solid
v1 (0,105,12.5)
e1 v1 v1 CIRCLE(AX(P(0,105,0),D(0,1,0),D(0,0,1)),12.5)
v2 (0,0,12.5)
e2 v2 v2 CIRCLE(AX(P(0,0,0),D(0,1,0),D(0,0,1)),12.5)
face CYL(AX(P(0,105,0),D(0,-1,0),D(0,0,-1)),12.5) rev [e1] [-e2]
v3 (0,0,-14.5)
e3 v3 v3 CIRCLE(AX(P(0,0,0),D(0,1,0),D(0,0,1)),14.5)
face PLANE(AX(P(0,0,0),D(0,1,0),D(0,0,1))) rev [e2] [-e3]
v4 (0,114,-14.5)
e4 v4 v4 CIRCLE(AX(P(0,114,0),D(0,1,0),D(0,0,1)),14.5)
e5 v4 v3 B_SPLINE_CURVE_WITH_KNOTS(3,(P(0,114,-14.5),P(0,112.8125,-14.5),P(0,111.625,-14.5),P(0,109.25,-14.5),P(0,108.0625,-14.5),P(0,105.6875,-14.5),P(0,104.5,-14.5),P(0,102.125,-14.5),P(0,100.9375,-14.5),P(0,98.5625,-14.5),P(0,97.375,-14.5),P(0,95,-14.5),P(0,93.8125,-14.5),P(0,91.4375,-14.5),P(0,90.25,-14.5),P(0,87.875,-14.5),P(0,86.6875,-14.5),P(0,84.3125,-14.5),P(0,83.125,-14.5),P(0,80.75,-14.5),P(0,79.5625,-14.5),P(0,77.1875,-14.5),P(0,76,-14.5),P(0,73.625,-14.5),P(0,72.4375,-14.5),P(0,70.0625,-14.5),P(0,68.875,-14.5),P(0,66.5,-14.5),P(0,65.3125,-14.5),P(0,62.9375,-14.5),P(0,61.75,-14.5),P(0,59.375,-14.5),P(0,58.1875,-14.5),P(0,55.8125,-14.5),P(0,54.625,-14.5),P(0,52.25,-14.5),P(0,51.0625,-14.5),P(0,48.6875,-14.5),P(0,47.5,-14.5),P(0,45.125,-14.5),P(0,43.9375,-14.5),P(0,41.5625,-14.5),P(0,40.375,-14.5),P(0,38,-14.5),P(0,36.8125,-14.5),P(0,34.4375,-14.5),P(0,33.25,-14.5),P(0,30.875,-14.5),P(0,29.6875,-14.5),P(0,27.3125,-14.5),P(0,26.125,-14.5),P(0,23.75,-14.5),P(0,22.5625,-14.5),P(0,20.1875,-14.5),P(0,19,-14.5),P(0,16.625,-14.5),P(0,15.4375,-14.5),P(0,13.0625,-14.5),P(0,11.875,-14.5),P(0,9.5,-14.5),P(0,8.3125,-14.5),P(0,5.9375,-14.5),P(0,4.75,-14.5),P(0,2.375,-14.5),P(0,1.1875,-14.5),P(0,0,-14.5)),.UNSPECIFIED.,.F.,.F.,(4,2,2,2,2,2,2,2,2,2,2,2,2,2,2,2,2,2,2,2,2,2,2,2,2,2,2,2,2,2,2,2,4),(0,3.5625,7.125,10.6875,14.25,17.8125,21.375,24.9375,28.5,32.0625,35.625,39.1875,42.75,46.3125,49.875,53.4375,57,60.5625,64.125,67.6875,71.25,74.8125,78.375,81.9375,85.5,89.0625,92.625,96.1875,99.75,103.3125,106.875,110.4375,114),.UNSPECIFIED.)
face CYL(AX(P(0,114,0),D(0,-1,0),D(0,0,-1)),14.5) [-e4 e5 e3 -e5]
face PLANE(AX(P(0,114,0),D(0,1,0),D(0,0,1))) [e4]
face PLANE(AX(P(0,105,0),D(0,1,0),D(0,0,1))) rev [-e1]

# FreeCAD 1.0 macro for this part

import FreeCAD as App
import Part
import Sketcher
from FreeCAD import Vector
Q = App.Units.Quantity

doc = App.newDocument("Part")
params = doc.addObject("Spreadsheet::Sheet", "Params")
for row, (alias, value) in enumerate([
    ("sketch1_diameter", "29 mm"),
    ("pad1_length", "114 mm"),
    ("sketch2_diameter", "25 mm"),
    ("pocket1_length", "105 mm"),
], start=1):
    params.set(f"A{row}", alias)
    params.set(f"B{row}", "=" + value)
    params.setAlias(f"B{row}", alias)

body = doc.addObject("PartDesign::Body", "Body")

# Sketch on XZ plane
sketch1 = doc.addObject("Sketcher::SketchObject", "Sketch")
body.addObject(sketch1)
sketch1.AttachmentSupport = (doc.XZ_Plane, [""])
sketch1.MapMode = "FlatFace"
sketch1.addGeometry(Part.Circle(Vector(0, 0, 0), Vector(0, 0, 1), 14.5), False)
sketch1.addConstraint([
    Sketcher.Constraint("Coincident", 0, 3, -1, 1),
    Sketcher.Constraint("Diameter", 0, Q("29 mm")),
])
sketch1.setExpression("Constraints[1]", "Params.sketch1_diameter")
pad1 = doc.addObject("PartDesign::Pad", "Pad")
body.addObject(pad1)
pad1.Profile = sketch1
pad1.setExpression("Length", "Params.pad1_length")
pad1.Reversed = True

# Sketch on XZ plane
sketch2 = doc.addObject("Sketcher::SketchObject", "Sketch001")
body.addObject(sketch2)
sketch2.AttachmentSupport = (doc.XZ_Plane, [""])
sketch2.MapMode = "FlatFace"
sketch2.addGeometry(Part.Circle(Vector(0, 0, 0), Vector(0, 0, 1), 12.5), False)
sketch2.addConstraint([
    Sketcher.Constraint("Coincident", 0, 3, -1, 1),
    Sketcher.Constraint("Diameter", 0, Q("25 mm")),
])
sketch2.setExpression("Constraints[1]", "Params.sketch2_diameter")
pocket1 = doc.addObject("PartDesign::Pocket", "Pocket")
body.addObject(pocket1)
pocket1.Profile = sketch2
pocket1.setExpression("Length", "Params.pocket1_length")

doc.recompute()
